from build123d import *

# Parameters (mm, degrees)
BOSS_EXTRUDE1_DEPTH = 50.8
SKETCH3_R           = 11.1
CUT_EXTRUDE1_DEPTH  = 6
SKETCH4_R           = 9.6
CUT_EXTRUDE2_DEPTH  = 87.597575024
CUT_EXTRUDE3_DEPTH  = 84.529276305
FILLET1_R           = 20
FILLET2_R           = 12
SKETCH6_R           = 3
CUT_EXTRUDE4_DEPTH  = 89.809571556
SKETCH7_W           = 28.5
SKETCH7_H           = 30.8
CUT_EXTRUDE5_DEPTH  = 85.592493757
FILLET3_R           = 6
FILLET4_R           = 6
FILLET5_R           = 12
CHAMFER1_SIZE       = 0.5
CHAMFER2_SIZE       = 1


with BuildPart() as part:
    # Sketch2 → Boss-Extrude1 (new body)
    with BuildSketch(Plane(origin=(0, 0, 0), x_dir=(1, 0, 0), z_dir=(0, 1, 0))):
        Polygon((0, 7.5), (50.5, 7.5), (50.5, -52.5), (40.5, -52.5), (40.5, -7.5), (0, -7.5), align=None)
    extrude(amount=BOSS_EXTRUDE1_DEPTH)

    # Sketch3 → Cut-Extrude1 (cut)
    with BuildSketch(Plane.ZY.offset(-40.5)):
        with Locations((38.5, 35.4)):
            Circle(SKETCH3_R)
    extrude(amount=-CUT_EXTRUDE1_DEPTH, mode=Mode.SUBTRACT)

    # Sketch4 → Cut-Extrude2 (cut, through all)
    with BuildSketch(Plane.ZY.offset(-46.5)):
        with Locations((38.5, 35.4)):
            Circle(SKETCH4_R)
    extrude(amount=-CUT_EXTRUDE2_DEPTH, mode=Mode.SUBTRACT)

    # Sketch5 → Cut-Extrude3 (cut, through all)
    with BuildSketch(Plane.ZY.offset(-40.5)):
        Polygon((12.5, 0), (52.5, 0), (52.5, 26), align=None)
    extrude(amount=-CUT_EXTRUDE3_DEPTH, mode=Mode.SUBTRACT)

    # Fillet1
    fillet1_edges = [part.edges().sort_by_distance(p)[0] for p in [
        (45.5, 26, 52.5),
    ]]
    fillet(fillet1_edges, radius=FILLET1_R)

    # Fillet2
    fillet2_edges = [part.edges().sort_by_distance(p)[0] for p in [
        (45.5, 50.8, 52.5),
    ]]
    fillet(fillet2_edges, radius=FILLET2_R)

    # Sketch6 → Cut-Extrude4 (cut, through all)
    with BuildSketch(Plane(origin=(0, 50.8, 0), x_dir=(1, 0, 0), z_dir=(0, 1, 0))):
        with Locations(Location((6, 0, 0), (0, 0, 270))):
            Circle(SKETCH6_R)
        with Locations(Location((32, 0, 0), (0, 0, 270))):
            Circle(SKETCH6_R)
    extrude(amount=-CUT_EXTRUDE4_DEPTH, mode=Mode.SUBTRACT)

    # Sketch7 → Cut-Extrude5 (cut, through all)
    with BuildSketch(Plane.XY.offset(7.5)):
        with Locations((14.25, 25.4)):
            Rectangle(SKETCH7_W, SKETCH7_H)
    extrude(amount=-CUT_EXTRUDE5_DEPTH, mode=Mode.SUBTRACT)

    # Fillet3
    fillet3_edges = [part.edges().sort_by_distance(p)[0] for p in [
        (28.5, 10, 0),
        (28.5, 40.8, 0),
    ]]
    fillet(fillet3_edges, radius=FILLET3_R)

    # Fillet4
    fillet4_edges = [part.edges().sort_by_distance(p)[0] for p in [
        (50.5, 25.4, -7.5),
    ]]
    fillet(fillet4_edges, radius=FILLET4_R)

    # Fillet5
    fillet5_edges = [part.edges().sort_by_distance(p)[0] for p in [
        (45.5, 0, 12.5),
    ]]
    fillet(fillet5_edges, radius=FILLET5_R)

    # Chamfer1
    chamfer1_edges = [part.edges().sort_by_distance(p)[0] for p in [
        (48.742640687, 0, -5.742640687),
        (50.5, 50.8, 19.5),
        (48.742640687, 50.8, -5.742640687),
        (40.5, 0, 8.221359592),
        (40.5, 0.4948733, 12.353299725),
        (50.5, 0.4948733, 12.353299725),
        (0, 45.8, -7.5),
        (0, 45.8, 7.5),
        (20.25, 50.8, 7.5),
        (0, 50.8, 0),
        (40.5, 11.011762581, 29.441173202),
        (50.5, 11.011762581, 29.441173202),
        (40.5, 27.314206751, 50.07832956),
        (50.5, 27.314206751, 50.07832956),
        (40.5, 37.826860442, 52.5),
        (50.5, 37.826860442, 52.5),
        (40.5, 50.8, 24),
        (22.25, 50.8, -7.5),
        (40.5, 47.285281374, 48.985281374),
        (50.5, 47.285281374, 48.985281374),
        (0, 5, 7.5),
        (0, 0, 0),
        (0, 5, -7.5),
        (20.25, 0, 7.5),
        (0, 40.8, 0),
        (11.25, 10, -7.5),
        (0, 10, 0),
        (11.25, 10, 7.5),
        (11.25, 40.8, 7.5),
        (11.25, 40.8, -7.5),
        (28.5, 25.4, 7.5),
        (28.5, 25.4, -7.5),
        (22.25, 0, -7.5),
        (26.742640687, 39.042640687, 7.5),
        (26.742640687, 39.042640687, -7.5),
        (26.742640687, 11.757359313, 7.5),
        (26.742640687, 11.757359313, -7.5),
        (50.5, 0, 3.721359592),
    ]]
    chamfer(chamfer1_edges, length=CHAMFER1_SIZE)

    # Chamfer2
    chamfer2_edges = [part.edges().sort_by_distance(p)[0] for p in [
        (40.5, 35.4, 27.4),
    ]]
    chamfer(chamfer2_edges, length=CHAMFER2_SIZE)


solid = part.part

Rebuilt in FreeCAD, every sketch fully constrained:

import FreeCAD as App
import Part
import Sketcher


def edges_at(feature, points):
    """Names of the edges that pass closest to the given points."""
    edges = feature.Shape.Edges
    near = lambda p: min(range(len(edges)), key=lambda i: edges[i].distToShape(Part.Vertex(*p))[0])
    return sorted({f"Edge{near(p) + 1}" for p in points})


def add_polygon(sketch, points):
    """Adds a closed chain of lines whose ends are joined by coincident constraints."""
    first, n = sketch.GeometryCount, len(points)
    for a, b in zip(points, points[1:] + points[:1]):
        sketch.addGeometry(Part.LineSegment(App.Vector(*a, 0), App.Vector(*b, 0)), False)
    for i in range(n):
        sketch.addConstraint(Sketcher.Constraint("Coincident", first + i, 2, first + (i + 1) % n, 1))

doc = App.newDocument("Part")
params = doc.addObject("Spreadsheet::Sheet", "Params")
for row, (alias, value) in enumerate([
    ("sketch1_width", "10 mm"),
    ("sketch1_height", "15 mm"),
    ("sketch1_height2", "45 mm"),
    ("sketch1_width2", "50.5 mm"),
    ("pad1_length", "50.8 mm"),
    ("sketch2_diameter", "22.2 mm"),
    ("pocket1_length", "6 mm"),
    ("sketch3_diameter", "19.2 mm"),
    ("sketch4_width", "26 mm"),
    ("sketch4_height", "40 mm"),
    ("fillet_radius", "20 mm"),
    ("fillet2_radius", "12 mm"),
    ("sketch5_diameter", "6 mm"),
    ("sketch6_width", "28.5 mm"),
    ("sketch6_height", "30.8 mm"),
    ("fillet3_radius", "6 mm"),
    ("fillet4_radius", "6 mm"),
    ("fillet5_radius", "12 mm"),
    ("chamfer_size", "0.5 mm"),
    ("chamfer2_size", "1 mm"),
], start=1):
    params.set(f"A{row}", alias)
    params.set(f"B{row}", "=" + value)
    params.setAlias(f"B{row}", alias)

body = doc.addObject("PartDesign::Body", "Body")

# Sketch on XZ plane
sketch1 = body.newObject("Sketcher::SketchObject", "Sketch")
sketch1.AttachmentSupport = (doc.getObject("XZ_Plane"), [""])
sketch1.MapMode = "FlatFace"
add_polygon(sketch1, [(50, -8), (0, -8), (0, 8), (40, 8), (40, 52), (50, 52)])  # lines 0-5
sketch1.addConstraint(Sketcher.Constraint("Horizontal", 0))
sketch1.addConstraint(Sketcher.Constraint("Vertical", 1))
sketch1.addConstraint(Sketcher.Constraint("Horizontal", 2))
sketch1.addConstraint(Sketcher.Constraint("Vertical", 3))
sketch1.addConstraint(Sketcher.Constraint("Horizontal", 4))
sketch1.addConstraint(Sketcher.Constraint("Vertical", 5))
sketch1.addConstraint(Sketcher.Constraint("Symmetric", 0, 2, 1, 2, -1, 1))
sketch1.addConstraint(Sketcher.Constraint("DistanceX", 4, 1, 4, 2, 10.0))
sketch1.addConstraint(Sketcher.Constraint("DistanceY", 1, 1, 1, 2, 15.0))
sketch1.addConstraint(Sketcher.Constraint("DistanceY", 3, 1, 3, 2, 45.0))
sketch1.addConstraint(Sketcher.Constraint("DistanceX", 0, 2, 0, 1, 50.5))
sketch1.setExpression("Constraints[13]", "Params.sketch1_width")
sketch1.setExpression("Constraints[14]", "Params.sketch1_height")
sketch1.setExpression("Constraints[15]", "Params.sketch1_height2")
sketch1.setExpression("Constraints[16]", "Params.sketch1_width2")
pad1 = body.newObject("PartDesign::Pad", "Pad")
pad1.Profile = sketch1
pad1.setExpression("Length", "Params.pad1_length")
pad1.Reversed = True

# Sketch on YZ plane
sketch2 = body.newObject("Sketcher::SketchObject", "Sketch001")
sketch2.AttachmentSupport = (doc.getObject("YZ_Plane"), [""])
sketch2.MapMode = "FlatFace"
sketch2.AttachmentOffset = App.Placement(App.Vector(0, 0, 40.5), App.Rotation())
sketch2.addGeometry(Part.Circle(App.Vector(35, 38, 0), App.Vector(0, 0, 1), 11), False)
sketch2.addConstraint(Sketcher.Constraint("Diameter", 0, 22.2))
sketch2.addConstraint(Sketcher.Constraint("DistanceX", -1, 1, 0, 3, 35.4))
sketch2.addConstraint(Sketcher.Constraint("DistanceY", -1, 1, 0, 3, 38.5))
sketch2.setExpression("Constraints[0]", "Params.sketch2_diameter")
pocket1 = body.newObject("PartDesign::Pocket", "Pocket")
pocket1.Profile = sketch2
pocket1.setExpression("Length", "Params.pocket1_length")
pocket1.Reversed = True

# Sketch on YZ plane
sketch3 = body.newObject("Sketcher::SketchObject", "Sketch002")
sketch3.AttachmentSupport = (doc.getObject("YZ_Plane"), [""])
sketch3.MapMode = "FlatFace"
sketch3.AttachmentOffset = App.Placement(App.Vector(0, 0, 46.5), App.Rotation())
sketch3.addGeometry(Part.Circle(App.Vector(35, 38, 0), App.Vector(0, 0, 1), 10), False)
sketch3.addConstraint(Sketcher.Constraint("Diameter", 0, 19.2))
sketch3.addConstraint(Sketcher.Constraint("DistanceX", -1, 1, 0, 3, 35.4))
sketch3.addConstraint(Sketcher.Constraint("DistanceY", -1, 1, 0, 3, 38.5))
sketch3.setExpression("Constraints[0]", "Params.sketch3_diameter")
pocket2 = body.newObject("PartDesign::Pocket", "Pocket001")
pocket2.Profile = sketch3
pocket2.Type = "ThroughAll"
pocket2.Reversed = True

# Sketch on YZ plane
sketch4 = body.newObject("Sketcher::SketchObject", "Sketch003")
sketch4.AttachmentSupport = (doc.getObject("YZ_Plane"), [""])
sketch4.MapMode = "FlatFace"
sketch4.AttachmentOffset = App.Placement(App.Vector(0, 0, 40.5), App.Rotation())
add_polygon(sketch4, [(0, 12), (0, 52), (26, 52)])  # lines 0-2
sketch4.addConstraint(Sketcher.Constraint("Vertical", 0))
sketch4.addConstraint(Sketcher.Constraint("Horizontal", 1))
sketch4.addConstraint(Sketcher.Constraint("PointOnObject", 0, 2, -2))
sketch4.addConstraint(Sketcher.Constraint("DistanceX", 1, 1, 1, 2, 26.0))
sketch4.addConstraint(Sketcher.Constraint("DistanceY", 0, 1, 0, 2, 40.0))
sketch4.addConstraint(Sketcher.Constraint("DistanceY", -1, 1, 0, 2, 52.5))
sketch4.setExpression("Constraints[6]", "Params.sketch4_width")
sketch4.setExpression("Constraints[7]", "Params.sketch4_height")
pocket3 = body.newObject("PartDesign::Pocket", "Pocket002")
pocket3.Profile = sketch4
pocket3.Type = "ThroughAll"
pocket3.Reversed = True
doc.recompute()

fillet = body.newObject("PartDesign::Fillet", "Fillet")
fillet.Base = (pocket3, edges_at(pocket3, [(45.5, 26, 52.5)]))
fillet.setExpression("Radius", "Params.fillet_radius")
doc.recompute()

fillet2 = body.newObject("PartDesign::Fillet", "Fillet001")
fillet2.Base = (fillet, edges_at(fillet, [(45.5, 50.8, 52.5)]))
fillet2.setExpression("Radius", "Params.fillet2_radius")

# Sketch on XZ plane
sketch5 = body.newObject("Sketcher::SketchObject", "Sketch004")
sketch5.AttachmentSupport = (doc.getObject("XZ_Plane"), [""])
sketch5.MapMode = "FlatFace"
sketch5.AttachmentOffset = App.Placement(App.Vector(0, 0, -50.8), App.Rotation())
sketch5.addGeometry(Part.Circle(App.Vector(6, 0, 0), App.Vector(0, 0, 1), 3), False)
sketch5.addGeometry(Part.Circle(App.Vector(32, 0, 0), App.Vector(0, 0, 1), 3), False)
sketch5.addConstraint(Sketcher.Constraint("Equal", 0, 1))
sketch5.addConstraint(Sketcher.Constraint("PointOnObject", 0, 3, -1))
sketch5.addConstraint(Sketcher.Constraint("PointOnObject", 1, 3, -1))
sketch5.addConstraint(Sketcher.Constraint("Diameter", 0, 6.0))
sketch5.addConstraint(Sketcher.Constraint("DistanceX", -1, 1, 0, 3, 6.0))
sketch5.addConstraint(Sketcher.Constraint("DistanceX", -1, 1, 1, 3, 32.0))
sketch5.setExpression("Constraints[3]", "Params.sketch5_diameter")
pocket4 = body.newObject("PartDesign::Pocket", "Pocket003")
pocket4.Profile = sketch5
pocket4.Type = "ThroughAll"
pocket4.Reversed = True

# Sketch on XY plane
sketch6 = body.newObject("Sketcher::SketchObject", "Sketch005")
sketch6.AttachmentSupport = (doc.getObject("XY_Plane"), [""])
sketch6.MapMode = "FlatFace"
sketch6.AttachmentOffset = App.Placement(App.Vector(0, 0, 7.5), App.Rotation())
add_polygon(sketch6, [(0, 41), (0, 10), (28, 10), (28, 41)])  # lines 0-3
sketch6.addConstraint(Sketcher.Constraint("Vertical", 0))
sketch6.addConstraint(Sketcher.Constraint("Horizontal", 1))
sketch6.addConstraint(Sketcher.Constraint("Vertical", 2))
sketch6.addConstraint(Sketcher.Constraint("Horizontal", 3))
sketch6.addConstraint(Sketcher.Constraint("PointOnObject", 0, 2, -2))
sketch6.addConstraint(Sketcher.Constraint("DistanceX", 1, 1, 1, 2, 28.5))
sketch6.addConstraint(Sketcher.Constraint("DistanceY", 0, 2, 0, 1, 30.8))
sketch6.addConstraint(Sketcher.Constraint("DistanceY", -1, 1, 0, 2, 10.0))
sketch6.setExpression("Constraints[9]", "Params.sketch6_width")
sketch6.setExpression("Constraints[10]", "Params.sketch6_height")
pocket5 = body.newObject("PartDesign::Pocket", "Pocket004")
pocket5.Profile = sketch6
pocket5.Type = "ThroughAll"
doc.recompute()

fillet3 = body.newObject("PartDesign::Fillet", "Fillet002")
fillet3.Base = (pocket5, edges_at(pocket5, [(28.5, 10, 0), (28.5, 40.8, 0)]))
fillet3.setExpression("Radius", "Params.fillet3_radius")
doc.recompute()

fillet4 = body.newObject("PartDesign::Fillet", "Fillet003")
fillet4.Base = (fillet3, edges_at(fillet3, [(50.5, 25.4, -7.5)]))
fillet4.setExpression("Radius", "Params.fillet4_radius")
doc.recompute()

fillet5 = body.newObject("PartDesign::Fillet", "Fillet004")
fillet5.Base = (fillet4, edges_at(fillet4, [(45.5, 0, 12.5)]))
fillet5.setExpression("Radius", "Params.fillet5_radius")
doc.recompute()

chamfer = body.newObject("PartDesign::Chamfer", "Chamfer")
chamfer.Base = (fillet5, edges_at(fillet5, [
    (48.743, 0, -5.743),
    (50.5, 50.8, 19.5),
    (48.743, 50.8, -5.743),
    (40.5, 0, 8.221),
    (40.5, 0.495, 12.353),
    (50.5, 0.495, 12.353),
    (0, 45.8, -7.5),
    (0, 45.8, 7.5),
    (20.25, 50.8, 7.5),
    (0, 50.8, 0),
    (40.5, 11.012, 29.441),
    (50.5, 11.012, 29.441),
    (40.5, 27.314, 50.078),
    (50.5, 27.314, 50.078),
    (40.5, 37.827, 52.5),
    (50.5, 37.827, 52.5),
    (40.5, 50.8, 24),
    (22.25, 50.8, -7.5),
    (40.5, 47.285, 48.985),
    (50.5, 47.285, 48.985),
    (0, 5, 7.5),
    (0, 0, 0),
    (0, 5, -7.5),
    (20.25, 0, 7.5),
    (0, 40.8, 0),
    (11.25, 10, -7.5),
    (0, 10, 0),
    (11.25, 10, 7.5),
    (11.25, 40.8, 7.5),
    (11.25, 40.8, -7.5),
    (28.5, 25.4, 7.5),
    (28.5, 25.4, -7.5),
    (22.25, 0, -7.5),
    (26.743, 39.043, 7.5),
    (26.743, 39.043, -7.5),
    (26.743, 11.757, 7.5),
    (26.743, 11.757, -7.5),
    (50.5, 0, 3.721),
]))
chamfer.setExpression("Size", "Params.chamfer_size")
doc.recompute()

chamfer2 = body.newObject("PartDesign::Chamfer", "Chamfer001")
chamfer2.Base = (chamfer, edges_at(chamfer, [(40.5, 35.4, 27.4)]))
chamfer2.setExpression("Size", "Params.chamfer2_size")

doc.recompute()
